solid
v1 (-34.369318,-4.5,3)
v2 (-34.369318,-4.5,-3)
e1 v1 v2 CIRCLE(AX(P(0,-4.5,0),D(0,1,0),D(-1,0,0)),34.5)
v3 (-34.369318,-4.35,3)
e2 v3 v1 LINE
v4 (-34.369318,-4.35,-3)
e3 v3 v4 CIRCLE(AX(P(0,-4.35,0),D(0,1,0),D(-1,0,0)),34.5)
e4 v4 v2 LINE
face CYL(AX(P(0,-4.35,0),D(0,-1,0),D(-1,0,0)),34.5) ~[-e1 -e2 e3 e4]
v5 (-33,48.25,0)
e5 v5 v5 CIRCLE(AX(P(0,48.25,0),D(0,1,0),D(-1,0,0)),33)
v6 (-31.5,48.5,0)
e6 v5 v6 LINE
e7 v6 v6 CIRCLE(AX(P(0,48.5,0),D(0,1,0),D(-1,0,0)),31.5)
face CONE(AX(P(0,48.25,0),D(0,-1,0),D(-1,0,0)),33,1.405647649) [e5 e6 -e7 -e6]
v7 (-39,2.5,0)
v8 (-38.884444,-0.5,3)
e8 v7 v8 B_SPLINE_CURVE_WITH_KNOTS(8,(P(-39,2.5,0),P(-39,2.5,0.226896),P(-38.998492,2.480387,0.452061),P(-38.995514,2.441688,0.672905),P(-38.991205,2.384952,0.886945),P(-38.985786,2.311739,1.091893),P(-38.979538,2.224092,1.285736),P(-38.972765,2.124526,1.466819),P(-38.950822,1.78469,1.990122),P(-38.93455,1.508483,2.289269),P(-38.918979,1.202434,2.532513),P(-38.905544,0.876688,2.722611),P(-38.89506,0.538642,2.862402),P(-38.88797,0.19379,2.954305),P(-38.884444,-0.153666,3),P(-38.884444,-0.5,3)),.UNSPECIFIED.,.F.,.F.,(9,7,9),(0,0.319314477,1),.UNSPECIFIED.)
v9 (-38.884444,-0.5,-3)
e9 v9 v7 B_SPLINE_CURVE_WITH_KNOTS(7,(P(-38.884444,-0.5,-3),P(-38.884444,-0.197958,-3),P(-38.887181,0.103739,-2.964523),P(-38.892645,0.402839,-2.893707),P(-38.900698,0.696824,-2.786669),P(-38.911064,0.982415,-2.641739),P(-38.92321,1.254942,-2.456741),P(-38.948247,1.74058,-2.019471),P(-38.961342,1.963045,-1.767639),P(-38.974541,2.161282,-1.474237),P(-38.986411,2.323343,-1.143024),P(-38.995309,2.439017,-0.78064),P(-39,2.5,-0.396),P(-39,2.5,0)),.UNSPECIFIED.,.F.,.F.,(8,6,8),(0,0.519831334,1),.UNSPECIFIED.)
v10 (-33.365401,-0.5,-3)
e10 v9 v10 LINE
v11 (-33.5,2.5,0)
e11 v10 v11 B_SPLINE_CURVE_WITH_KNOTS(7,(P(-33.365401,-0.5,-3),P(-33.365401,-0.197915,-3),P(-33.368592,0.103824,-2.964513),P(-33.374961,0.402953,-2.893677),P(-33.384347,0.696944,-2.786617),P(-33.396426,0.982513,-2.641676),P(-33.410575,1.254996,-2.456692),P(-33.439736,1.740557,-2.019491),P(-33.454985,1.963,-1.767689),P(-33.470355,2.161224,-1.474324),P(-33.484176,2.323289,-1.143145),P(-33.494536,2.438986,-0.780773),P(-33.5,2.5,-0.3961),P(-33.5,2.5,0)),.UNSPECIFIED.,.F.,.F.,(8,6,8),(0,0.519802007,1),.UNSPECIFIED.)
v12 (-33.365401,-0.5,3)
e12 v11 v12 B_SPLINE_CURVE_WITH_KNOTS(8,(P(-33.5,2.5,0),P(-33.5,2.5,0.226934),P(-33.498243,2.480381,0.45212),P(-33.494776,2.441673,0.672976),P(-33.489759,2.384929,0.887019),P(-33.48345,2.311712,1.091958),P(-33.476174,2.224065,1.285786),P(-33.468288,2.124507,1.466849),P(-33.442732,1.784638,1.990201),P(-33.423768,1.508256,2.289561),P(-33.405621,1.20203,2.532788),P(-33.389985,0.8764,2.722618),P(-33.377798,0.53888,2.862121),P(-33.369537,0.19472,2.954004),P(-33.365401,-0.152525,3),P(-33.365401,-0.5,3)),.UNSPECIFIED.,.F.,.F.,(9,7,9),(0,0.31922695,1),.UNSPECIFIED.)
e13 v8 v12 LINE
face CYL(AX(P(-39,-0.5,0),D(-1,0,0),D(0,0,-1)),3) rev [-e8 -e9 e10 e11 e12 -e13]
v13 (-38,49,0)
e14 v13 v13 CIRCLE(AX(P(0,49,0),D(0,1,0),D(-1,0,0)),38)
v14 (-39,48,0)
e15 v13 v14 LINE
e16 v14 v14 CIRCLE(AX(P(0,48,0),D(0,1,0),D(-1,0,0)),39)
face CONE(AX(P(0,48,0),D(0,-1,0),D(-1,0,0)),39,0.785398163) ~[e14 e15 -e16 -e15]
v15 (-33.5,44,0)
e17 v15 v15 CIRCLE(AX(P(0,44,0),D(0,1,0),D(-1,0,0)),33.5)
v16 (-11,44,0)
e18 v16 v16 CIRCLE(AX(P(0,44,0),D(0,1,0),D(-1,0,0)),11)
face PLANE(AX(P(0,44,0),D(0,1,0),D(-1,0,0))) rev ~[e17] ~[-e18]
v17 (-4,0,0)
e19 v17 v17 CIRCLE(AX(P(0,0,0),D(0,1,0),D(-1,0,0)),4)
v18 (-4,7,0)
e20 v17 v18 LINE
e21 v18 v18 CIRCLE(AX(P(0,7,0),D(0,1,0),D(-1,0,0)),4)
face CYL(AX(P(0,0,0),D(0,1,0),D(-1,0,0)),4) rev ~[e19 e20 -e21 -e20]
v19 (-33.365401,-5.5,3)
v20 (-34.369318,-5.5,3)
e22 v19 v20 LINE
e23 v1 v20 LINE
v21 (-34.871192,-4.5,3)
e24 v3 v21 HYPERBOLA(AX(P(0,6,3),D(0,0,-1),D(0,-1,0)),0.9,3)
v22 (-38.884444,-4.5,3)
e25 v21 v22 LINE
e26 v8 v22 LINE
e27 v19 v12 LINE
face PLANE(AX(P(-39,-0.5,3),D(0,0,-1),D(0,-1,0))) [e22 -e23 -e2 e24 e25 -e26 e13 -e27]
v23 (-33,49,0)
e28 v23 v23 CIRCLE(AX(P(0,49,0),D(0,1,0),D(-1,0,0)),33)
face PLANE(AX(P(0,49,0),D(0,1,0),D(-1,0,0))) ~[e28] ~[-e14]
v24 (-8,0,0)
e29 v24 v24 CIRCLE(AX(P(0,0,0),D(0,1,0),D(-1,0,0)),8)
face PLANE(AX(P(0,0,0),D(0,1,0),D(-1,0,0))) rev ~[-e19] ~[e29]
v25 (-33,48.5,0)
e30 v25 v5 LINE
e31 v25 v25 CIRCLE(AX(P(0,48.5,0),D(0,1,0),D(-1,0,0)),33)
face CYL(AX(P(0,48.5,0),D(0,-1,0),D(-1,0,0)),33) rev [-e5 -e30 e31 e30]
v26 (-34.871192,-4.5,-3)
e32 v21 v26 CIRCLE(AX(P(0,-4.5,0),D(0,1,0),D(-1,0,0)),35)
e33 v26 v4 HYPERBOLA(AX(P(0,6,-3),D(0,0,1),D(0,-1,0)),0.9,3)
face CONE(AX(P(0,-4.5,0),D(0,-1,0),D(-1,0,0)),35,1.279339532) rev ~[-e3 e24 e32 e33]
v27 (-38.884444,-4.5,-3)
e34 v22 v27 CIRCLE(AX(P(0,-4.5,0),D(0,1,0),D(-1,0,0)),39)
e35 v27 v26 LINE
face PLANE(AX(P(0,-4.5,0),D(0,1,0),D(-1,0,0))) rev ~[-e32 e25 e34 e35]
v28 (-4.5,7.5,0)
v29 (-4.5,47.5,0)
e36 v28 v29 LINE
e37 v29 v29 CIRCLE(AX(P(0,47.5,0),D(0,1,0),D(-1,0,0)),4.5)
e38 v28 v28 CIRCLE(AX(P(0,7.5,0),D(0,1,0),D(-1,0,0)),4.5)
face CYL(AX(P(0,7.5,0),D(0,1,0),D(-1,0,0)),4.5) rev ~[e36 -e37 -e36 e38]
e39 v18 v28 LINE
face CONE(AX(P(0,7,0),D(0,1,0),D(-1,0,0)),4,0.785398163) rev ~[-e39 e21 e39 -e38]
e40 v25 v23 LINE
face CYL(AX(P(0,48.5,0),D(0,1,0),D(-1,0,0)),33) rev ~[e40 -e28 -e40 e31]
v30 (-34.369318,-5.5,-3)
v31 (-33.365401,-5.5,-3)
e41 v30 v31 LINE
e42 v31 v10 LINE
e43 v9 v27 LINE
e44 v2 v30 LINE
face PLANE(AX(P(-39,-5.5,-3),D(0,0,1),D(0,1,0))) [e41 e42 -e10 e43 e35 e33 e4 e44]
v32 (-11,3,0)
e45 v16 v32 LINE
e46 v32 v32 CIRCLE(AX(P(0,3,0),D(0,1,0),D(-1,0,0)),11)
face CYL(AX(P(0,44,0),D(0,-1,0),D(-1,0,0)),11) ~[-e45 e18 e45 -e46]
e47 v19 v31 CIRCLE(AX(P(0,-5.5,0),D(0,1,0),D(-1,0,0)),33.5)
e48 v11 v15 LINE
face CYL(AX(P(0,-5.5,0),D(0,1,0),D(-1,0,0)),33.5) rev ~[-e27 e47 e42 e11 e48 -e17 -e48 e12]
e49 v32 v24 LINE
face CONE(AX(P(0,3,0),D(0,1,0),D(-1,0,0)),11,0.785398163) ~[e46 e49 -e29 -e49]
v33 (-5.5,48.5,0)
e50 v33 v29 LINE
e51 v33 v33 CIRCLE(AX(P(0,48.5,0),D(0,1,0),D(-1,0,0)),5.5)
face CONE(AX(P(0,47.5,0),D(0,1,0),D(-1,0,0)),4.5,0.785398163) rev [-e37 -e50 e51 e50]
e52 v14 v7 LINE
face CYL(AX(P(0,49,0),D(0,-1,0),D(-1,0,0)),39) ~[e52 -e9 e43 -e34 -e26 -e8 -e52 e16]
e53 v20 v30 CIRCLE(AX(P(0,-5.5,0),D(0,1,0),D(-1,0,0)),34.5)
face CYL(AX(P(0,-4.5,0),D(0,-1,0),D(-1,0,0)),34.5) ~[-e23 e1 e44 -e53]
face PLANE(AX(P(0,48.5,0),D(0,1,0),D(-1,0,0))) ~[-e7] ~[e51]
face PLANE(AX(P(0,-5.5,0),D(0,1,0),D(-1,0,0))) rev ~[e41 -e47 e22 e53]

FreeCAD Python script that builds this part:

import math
import FreeCAD as App
import Part
import Sketcher
Q = App.Units.Quantity


def edges_at(feature, points):
    """Names of the edges that pass closest to the given points."""
    edges = feature.Shape.Edges
    near = lambda p: min(range(len(edges)), key=lambda i: edges[i].distToShape(Part.Vertex(*p))[0])
    return sorted({f"Edge{near(p) + 1}" for p in points})

doc = App.newDocument("Part")
body = doc.addObject("PartDesign::Body", "Body")

sketch1 = body.newObject("Sketcher::SketchObject", "Sketch")
sketch1.AttachmentSupport = (doc.getObject("XY_Plane"), [""])
sketch1.MapMode = "FlatFace"
sketch1.addGeometry(Part.LineSegment(App.Vector(-8, 0, 0), App.Vector(-4, 0, 0)), False)
sketch1.addGeometry(Part.LineSegment(App.Vector(-4, 0, 0), App.Vector(-4, 7, 0)), False)
sketch1.addGeometry(Part.LineSegment(App.Vector(-4, 7, 0), App.Vector(-4.5, 7.5, 0)), False)
sketch1.addGeometry(Part.LineSegment(App.Vector(-4.5, 7.5, 0), App.Vector(-4.5, 48.5, 0)), False)
sketch1.addGeometry(Part.LineSegment(App.Vector(-4.5, 48.5, 0), App.Vector(-31.5, 48.5, 0)), False)
sketch1.addGeometry(Part.LineSegment(App.Vector(-31.5, 48.5, 0), App.Vector(-33, 48.2, 0)), False)
sketch1.addGeometry(Part.LineSegment(App.Vector(-33, 48.2, 0), App.Vector(-33, 49, 0)), False)
sketch1.addGeometry(Part.LineSegment(App.Vector(-33, 49, 0), App.Vector(-39, 49, 0)), False)
sketch1.addGeometry(Part.LineSegment(App.Vector(-39, 49, 0), App.Vector(-39, -4.5, 0)), False)
sketch1.addGeometry(Part.LineSegment(App.Vector(-39, -4.5, 0), App.Vector(-35, -4.5, 0)), False)
sketch1.addGeometry(Part.LineSegment(App.Vector(-35, -4.5, 0), App.Vector(-34.5, -4.3, 0)), False)
sketch1.addGeometry(Part.LineSegment(App.Vector(-34.5, -4.3, 0), App.Vector(-34.5, -5.5, 0)), False)
sketch1.addGeometry(Part.LineSegment(App.Vector(-34.5, -5.5, 0), App.Vector(-33.5, -5.5, 0)), False)
sketch1.addGeometry(Part.LineSegment(App.Vector(-33.5, -5.5, 0), App.Vector(-33.5, 44, 0)), False)
sketch1.addGeometry(Part.LineSegment(App.Vector(-33.5, 44, 0), App.Vector(-11, 44, 0)), False)
sketch1.addGeometry(Part.LineSegment(App.Vector(-11, 44, 0), App.Vector(-11, 3, 0)), False)
sketch1.addGeometry(Part.LineSegment(App.Vector(-11, 3, 0), App.Vector(-8, 0, 0)), False)
sketch1.addConstraint(Sketcher.Constraint("Coincident", 0, 2, 1, 1))
sketch1.addConstraint(Sketcher.Constraint("Coincident", 1, 2, 2, 1))
sketch1.addConstraint(Sketcher.Constraint("Coincident", 2, 2, 3, 1))
sketch1.addConstraint(Sketcher.Constraint("Coincident", 3, 2, 4, 1))
sketch1.addConstraint(Sketcher.Constraint("Coincident", 4, 2, 5, 1))
sketch1.addConstraint(Sketcher.Constraint("Coincident", 5, 2, 6, 1))
sketch1.addConstraint(Sketcher.Constraint("Coincident", 6, 2, 7, 1))
sketch1.addConstraint(Sketcher.Constraint("Coincident", 7, 2, 8, 1))
sketch1.addConstraint(Sketcher.Constraint("Coincident", 8, 2, 9, 1))
sketch1.addConstraint(Sketcher.Constraint("Coincident", 9, 2, 10, 1))
sketch1.addConstraint(Sketcher.Constraint("Coincident", 10, 2, 11, 1))
sketch1.addConstraint(Sketcher.Constraint("Coincident", 11, 2, 12, 1))
sketch1.addConstraint(Sketcher.Constraint("Coincident", 12, 2, 13, 1))
sketch1.addConstraint(Sketcher.Constraint("Coincident", 13, 2, 14, 1))
sketch1.addConstraint(Sketcher.Constraint("Coincident", 14, 2, 15, 1))
sketch1.addConstraint(Sketcher.Constraint("Coincident", 15, 2, 16, 1))
sketch1.addConstraint(Sketcher.Constraint("Coincident", 16, 2, 0, 1))
sketch1.addConstraint(Sketcher.Constraint("Horizontal", 0))
sketch1.addConstraint(Sketcher.Constraint("Vertical", 1))
sketch1.addConstraint(Sketcher.Constraint("Vertical", 3))
sketch1.addConstraint(Sketcher.Constraint("Horizontal", 4))
sketch1.addConstraint(Sketcher.Constraint("Vertical", 6))
sketch1.addConstraint(Sketcher.Constraint("Horizontal", 7))
sketch1.addConstraint(Sketcher.Constraint("Vertical", 8))
sketch1.addConstraint(Sketcher.Constraint("Horizontal", 9))
sketch1.addConstraint(Sketcher.Constraint("Vertical", 11))
sketch1.addConstraint(Sketcher.Constraint("Horizontal", 12))
sketch1.addConstraint(Sketcher.Constraint("Vertical", 13))
sketch1.addConstraint(Sketcher.Constraint("Horizontal", 14))
sketch1.addConstraint(Sketcher.Constraint("Vertical", 15))
sketch1.addConstraint(Sketcher.Constraint("PointOnObject", 0, 2, -1))
sketch1.addConstraint(Sketcher.Constraint("Parallel", 2, 16))
sketch1.addConstraint(Sketcher.Constraint("Equal", 0, 9))
sketch1.addConstraint(Sketcher.Constraint("Equal", 3, 15))
sketch1.addConstraint(Sketcher.Constraint("DistanceX", 12, 1, 12, 2, Q("1 mm")))
sketch1.addConstraint(Sketcher.Constraint("DistanceY", 1, 1, 1, 2, Q("7 mm")))
sketch1.addConstraint(Sketcher.Constraint("Angle", 2, Q("135 deg")))
sketch1.addConstraint(Sketcher.Constraint("DistanceY", -1, 1, 6, 2, Q("49 mm")))
sketch1.addConstraint(Sketcher.Constraint("DistanceY", -1, 1, 13, 2, Q("44 mm")))
sketch1.addConstraint(Sketcher.Constraint("DistanceX", 16, 2, -1, 1, Q("8 mm")))
sketch1.addConstraint(Sketcher.Constraint("DistanceY", 11, 2, 9, 2, Q("1 mm")))
sketch1.addConstraint(Sketcher.Constraint("DistanceX", 5, 2, 14, 2, Q("22 mm")))
sketch1.addConstraint(Sketcher.Constraint("DistanceX", 15, 2, 0, 2, Q("7 mm")))
sketch1.addConstraint(Sketcher.Constraint("DistanceX", 2, 2, -1, 1, Q("4.5 mm")))
sketch1.addConstraint(Sketcher.Constraint("DistanceY", 8, 2, -1, 1, Q("4.5 mm")))
sketch1.addConstraint(Sketcher.Constraint("DistanceX", 2, 2, 1, 2, Q("0.5 mm")))
sketch1.addConstraint(Sketcher.Constraint("DistanceX", 5, 2, 4, 2, Q("1.5 mm")))
sketch1.addConstraint(Sketcher.Constraint("DistanceX", 9, 2, 10, 2, Q("0.5 mm")))
sketch1.addConstraint(Sketcher.Constraint("DistanceX", 13, 2, 5, 2, Q("0.5 mm")))
sketch1.addConstraint(Sketcher.Constraint("DistanceY", 5, 2, 4, 2, Q("0.25 mm")))
sketch1.addConstraint(Sketcher.Constraint("DistanceY", 9, 2, 10, 2, Q("0.15 mm")))
revolution = body.newObject("PartDesign::Revolution", "Revolution")
revolution.Profile = sketch1
revolution.ReferenceAxis = (sketch1, ["V_Axis"])
revolution.Angle = 360
doc.recompute()

chamfer = body.newObject("PartDesign::Chamfer", "Chamfer")
chamfer.Base = (revolution, edges_at(revolution, [(4.5, 48.5, 0)]))
chamfer.Size = 1

sketch2 = body.newObject("Sketcher::SketchObject", "Sketch001")
sketch2.AttachmentSupport = (doc.getObject("YZ_Plane"), [""])
sketch2.MapMode = "FlatFace"
sketch2.AttachmentOffset = App.Placement(App.Vector(0, 0, -39), App.Rotation())
sketch2.addGeometry(Part.ArcOfCircle(Part.Circle(App.Vector(-0.5, 0, 0), App.Vector(0, 0, 1), 3), math.radians(-90), math.radians(90)), False)
sketch2.addGeometry(Part.LineSegment(App.Vector(-0.5, 3, 0), App.Vector(-15.6, 3, 0)), False)
sketch2.addGeometry(Part.ArcOfCircle(Part.Circle(App.Vector(-15.6, 0, 0), App.Vector(0, 0, 1), 3), math.radians(90), math.radians(270)), False)
sketch2.addGeometry(Part.LineSegment(App.Vector(-15.6, -3, 0), App.Vector(-0.5, -3, 0)), False)
sketch2.addConstraint(Sketcher.Constraint("Tangent", 0, 2, 1, 1))
sketch2.addConstraint(Sketcher.Constraint("Tangent", 1, 2, 2, 1))
sketch2.addConstraint(Sketcher.Constraint("Tangent", 2, 2, 3, 1))
sketch2.addConstraint(Sketcher.Constraint("Tangent", 3, 2, 0, 1))
sketch2.addConstraint(Sketcher.Constraint("Horizontal", 1))
sketch2.addConstraint(Sketcher.Constraint("Horizontal", 3))
sketch2.addConstraint(Sketcher.Constraint("PointOnObject", 0, 3, -1))
sketch2.addConstraint(Sketcher.Constraint("Radius", 0, Q("3 mm")))
sketch2.addConstraint(Sketcher.Constraint("DistanceX", 0, 3, -1, 1, Q("0.5 mm")))
sketch2.addConstraint(Sketcher.Constraint("DistanceX", 1, 2, 1, 1, Q("15.139 mm")))
pocket1 = body.newObject("PartDesign::Pocket", "Pocket")
pocket1.Profile = sketch2
pocket1.Length = 10
pocket1.Reversed = True
doc.recompute()

chamfer2 = body.newObject("PartDesign::Chamfer", "Chamfer001")
chamfer2.Base = (pocket1, edges_at(pocket1, [(39, 49, 0)]))
chamfer2.Size = 1

doc.recompute()
